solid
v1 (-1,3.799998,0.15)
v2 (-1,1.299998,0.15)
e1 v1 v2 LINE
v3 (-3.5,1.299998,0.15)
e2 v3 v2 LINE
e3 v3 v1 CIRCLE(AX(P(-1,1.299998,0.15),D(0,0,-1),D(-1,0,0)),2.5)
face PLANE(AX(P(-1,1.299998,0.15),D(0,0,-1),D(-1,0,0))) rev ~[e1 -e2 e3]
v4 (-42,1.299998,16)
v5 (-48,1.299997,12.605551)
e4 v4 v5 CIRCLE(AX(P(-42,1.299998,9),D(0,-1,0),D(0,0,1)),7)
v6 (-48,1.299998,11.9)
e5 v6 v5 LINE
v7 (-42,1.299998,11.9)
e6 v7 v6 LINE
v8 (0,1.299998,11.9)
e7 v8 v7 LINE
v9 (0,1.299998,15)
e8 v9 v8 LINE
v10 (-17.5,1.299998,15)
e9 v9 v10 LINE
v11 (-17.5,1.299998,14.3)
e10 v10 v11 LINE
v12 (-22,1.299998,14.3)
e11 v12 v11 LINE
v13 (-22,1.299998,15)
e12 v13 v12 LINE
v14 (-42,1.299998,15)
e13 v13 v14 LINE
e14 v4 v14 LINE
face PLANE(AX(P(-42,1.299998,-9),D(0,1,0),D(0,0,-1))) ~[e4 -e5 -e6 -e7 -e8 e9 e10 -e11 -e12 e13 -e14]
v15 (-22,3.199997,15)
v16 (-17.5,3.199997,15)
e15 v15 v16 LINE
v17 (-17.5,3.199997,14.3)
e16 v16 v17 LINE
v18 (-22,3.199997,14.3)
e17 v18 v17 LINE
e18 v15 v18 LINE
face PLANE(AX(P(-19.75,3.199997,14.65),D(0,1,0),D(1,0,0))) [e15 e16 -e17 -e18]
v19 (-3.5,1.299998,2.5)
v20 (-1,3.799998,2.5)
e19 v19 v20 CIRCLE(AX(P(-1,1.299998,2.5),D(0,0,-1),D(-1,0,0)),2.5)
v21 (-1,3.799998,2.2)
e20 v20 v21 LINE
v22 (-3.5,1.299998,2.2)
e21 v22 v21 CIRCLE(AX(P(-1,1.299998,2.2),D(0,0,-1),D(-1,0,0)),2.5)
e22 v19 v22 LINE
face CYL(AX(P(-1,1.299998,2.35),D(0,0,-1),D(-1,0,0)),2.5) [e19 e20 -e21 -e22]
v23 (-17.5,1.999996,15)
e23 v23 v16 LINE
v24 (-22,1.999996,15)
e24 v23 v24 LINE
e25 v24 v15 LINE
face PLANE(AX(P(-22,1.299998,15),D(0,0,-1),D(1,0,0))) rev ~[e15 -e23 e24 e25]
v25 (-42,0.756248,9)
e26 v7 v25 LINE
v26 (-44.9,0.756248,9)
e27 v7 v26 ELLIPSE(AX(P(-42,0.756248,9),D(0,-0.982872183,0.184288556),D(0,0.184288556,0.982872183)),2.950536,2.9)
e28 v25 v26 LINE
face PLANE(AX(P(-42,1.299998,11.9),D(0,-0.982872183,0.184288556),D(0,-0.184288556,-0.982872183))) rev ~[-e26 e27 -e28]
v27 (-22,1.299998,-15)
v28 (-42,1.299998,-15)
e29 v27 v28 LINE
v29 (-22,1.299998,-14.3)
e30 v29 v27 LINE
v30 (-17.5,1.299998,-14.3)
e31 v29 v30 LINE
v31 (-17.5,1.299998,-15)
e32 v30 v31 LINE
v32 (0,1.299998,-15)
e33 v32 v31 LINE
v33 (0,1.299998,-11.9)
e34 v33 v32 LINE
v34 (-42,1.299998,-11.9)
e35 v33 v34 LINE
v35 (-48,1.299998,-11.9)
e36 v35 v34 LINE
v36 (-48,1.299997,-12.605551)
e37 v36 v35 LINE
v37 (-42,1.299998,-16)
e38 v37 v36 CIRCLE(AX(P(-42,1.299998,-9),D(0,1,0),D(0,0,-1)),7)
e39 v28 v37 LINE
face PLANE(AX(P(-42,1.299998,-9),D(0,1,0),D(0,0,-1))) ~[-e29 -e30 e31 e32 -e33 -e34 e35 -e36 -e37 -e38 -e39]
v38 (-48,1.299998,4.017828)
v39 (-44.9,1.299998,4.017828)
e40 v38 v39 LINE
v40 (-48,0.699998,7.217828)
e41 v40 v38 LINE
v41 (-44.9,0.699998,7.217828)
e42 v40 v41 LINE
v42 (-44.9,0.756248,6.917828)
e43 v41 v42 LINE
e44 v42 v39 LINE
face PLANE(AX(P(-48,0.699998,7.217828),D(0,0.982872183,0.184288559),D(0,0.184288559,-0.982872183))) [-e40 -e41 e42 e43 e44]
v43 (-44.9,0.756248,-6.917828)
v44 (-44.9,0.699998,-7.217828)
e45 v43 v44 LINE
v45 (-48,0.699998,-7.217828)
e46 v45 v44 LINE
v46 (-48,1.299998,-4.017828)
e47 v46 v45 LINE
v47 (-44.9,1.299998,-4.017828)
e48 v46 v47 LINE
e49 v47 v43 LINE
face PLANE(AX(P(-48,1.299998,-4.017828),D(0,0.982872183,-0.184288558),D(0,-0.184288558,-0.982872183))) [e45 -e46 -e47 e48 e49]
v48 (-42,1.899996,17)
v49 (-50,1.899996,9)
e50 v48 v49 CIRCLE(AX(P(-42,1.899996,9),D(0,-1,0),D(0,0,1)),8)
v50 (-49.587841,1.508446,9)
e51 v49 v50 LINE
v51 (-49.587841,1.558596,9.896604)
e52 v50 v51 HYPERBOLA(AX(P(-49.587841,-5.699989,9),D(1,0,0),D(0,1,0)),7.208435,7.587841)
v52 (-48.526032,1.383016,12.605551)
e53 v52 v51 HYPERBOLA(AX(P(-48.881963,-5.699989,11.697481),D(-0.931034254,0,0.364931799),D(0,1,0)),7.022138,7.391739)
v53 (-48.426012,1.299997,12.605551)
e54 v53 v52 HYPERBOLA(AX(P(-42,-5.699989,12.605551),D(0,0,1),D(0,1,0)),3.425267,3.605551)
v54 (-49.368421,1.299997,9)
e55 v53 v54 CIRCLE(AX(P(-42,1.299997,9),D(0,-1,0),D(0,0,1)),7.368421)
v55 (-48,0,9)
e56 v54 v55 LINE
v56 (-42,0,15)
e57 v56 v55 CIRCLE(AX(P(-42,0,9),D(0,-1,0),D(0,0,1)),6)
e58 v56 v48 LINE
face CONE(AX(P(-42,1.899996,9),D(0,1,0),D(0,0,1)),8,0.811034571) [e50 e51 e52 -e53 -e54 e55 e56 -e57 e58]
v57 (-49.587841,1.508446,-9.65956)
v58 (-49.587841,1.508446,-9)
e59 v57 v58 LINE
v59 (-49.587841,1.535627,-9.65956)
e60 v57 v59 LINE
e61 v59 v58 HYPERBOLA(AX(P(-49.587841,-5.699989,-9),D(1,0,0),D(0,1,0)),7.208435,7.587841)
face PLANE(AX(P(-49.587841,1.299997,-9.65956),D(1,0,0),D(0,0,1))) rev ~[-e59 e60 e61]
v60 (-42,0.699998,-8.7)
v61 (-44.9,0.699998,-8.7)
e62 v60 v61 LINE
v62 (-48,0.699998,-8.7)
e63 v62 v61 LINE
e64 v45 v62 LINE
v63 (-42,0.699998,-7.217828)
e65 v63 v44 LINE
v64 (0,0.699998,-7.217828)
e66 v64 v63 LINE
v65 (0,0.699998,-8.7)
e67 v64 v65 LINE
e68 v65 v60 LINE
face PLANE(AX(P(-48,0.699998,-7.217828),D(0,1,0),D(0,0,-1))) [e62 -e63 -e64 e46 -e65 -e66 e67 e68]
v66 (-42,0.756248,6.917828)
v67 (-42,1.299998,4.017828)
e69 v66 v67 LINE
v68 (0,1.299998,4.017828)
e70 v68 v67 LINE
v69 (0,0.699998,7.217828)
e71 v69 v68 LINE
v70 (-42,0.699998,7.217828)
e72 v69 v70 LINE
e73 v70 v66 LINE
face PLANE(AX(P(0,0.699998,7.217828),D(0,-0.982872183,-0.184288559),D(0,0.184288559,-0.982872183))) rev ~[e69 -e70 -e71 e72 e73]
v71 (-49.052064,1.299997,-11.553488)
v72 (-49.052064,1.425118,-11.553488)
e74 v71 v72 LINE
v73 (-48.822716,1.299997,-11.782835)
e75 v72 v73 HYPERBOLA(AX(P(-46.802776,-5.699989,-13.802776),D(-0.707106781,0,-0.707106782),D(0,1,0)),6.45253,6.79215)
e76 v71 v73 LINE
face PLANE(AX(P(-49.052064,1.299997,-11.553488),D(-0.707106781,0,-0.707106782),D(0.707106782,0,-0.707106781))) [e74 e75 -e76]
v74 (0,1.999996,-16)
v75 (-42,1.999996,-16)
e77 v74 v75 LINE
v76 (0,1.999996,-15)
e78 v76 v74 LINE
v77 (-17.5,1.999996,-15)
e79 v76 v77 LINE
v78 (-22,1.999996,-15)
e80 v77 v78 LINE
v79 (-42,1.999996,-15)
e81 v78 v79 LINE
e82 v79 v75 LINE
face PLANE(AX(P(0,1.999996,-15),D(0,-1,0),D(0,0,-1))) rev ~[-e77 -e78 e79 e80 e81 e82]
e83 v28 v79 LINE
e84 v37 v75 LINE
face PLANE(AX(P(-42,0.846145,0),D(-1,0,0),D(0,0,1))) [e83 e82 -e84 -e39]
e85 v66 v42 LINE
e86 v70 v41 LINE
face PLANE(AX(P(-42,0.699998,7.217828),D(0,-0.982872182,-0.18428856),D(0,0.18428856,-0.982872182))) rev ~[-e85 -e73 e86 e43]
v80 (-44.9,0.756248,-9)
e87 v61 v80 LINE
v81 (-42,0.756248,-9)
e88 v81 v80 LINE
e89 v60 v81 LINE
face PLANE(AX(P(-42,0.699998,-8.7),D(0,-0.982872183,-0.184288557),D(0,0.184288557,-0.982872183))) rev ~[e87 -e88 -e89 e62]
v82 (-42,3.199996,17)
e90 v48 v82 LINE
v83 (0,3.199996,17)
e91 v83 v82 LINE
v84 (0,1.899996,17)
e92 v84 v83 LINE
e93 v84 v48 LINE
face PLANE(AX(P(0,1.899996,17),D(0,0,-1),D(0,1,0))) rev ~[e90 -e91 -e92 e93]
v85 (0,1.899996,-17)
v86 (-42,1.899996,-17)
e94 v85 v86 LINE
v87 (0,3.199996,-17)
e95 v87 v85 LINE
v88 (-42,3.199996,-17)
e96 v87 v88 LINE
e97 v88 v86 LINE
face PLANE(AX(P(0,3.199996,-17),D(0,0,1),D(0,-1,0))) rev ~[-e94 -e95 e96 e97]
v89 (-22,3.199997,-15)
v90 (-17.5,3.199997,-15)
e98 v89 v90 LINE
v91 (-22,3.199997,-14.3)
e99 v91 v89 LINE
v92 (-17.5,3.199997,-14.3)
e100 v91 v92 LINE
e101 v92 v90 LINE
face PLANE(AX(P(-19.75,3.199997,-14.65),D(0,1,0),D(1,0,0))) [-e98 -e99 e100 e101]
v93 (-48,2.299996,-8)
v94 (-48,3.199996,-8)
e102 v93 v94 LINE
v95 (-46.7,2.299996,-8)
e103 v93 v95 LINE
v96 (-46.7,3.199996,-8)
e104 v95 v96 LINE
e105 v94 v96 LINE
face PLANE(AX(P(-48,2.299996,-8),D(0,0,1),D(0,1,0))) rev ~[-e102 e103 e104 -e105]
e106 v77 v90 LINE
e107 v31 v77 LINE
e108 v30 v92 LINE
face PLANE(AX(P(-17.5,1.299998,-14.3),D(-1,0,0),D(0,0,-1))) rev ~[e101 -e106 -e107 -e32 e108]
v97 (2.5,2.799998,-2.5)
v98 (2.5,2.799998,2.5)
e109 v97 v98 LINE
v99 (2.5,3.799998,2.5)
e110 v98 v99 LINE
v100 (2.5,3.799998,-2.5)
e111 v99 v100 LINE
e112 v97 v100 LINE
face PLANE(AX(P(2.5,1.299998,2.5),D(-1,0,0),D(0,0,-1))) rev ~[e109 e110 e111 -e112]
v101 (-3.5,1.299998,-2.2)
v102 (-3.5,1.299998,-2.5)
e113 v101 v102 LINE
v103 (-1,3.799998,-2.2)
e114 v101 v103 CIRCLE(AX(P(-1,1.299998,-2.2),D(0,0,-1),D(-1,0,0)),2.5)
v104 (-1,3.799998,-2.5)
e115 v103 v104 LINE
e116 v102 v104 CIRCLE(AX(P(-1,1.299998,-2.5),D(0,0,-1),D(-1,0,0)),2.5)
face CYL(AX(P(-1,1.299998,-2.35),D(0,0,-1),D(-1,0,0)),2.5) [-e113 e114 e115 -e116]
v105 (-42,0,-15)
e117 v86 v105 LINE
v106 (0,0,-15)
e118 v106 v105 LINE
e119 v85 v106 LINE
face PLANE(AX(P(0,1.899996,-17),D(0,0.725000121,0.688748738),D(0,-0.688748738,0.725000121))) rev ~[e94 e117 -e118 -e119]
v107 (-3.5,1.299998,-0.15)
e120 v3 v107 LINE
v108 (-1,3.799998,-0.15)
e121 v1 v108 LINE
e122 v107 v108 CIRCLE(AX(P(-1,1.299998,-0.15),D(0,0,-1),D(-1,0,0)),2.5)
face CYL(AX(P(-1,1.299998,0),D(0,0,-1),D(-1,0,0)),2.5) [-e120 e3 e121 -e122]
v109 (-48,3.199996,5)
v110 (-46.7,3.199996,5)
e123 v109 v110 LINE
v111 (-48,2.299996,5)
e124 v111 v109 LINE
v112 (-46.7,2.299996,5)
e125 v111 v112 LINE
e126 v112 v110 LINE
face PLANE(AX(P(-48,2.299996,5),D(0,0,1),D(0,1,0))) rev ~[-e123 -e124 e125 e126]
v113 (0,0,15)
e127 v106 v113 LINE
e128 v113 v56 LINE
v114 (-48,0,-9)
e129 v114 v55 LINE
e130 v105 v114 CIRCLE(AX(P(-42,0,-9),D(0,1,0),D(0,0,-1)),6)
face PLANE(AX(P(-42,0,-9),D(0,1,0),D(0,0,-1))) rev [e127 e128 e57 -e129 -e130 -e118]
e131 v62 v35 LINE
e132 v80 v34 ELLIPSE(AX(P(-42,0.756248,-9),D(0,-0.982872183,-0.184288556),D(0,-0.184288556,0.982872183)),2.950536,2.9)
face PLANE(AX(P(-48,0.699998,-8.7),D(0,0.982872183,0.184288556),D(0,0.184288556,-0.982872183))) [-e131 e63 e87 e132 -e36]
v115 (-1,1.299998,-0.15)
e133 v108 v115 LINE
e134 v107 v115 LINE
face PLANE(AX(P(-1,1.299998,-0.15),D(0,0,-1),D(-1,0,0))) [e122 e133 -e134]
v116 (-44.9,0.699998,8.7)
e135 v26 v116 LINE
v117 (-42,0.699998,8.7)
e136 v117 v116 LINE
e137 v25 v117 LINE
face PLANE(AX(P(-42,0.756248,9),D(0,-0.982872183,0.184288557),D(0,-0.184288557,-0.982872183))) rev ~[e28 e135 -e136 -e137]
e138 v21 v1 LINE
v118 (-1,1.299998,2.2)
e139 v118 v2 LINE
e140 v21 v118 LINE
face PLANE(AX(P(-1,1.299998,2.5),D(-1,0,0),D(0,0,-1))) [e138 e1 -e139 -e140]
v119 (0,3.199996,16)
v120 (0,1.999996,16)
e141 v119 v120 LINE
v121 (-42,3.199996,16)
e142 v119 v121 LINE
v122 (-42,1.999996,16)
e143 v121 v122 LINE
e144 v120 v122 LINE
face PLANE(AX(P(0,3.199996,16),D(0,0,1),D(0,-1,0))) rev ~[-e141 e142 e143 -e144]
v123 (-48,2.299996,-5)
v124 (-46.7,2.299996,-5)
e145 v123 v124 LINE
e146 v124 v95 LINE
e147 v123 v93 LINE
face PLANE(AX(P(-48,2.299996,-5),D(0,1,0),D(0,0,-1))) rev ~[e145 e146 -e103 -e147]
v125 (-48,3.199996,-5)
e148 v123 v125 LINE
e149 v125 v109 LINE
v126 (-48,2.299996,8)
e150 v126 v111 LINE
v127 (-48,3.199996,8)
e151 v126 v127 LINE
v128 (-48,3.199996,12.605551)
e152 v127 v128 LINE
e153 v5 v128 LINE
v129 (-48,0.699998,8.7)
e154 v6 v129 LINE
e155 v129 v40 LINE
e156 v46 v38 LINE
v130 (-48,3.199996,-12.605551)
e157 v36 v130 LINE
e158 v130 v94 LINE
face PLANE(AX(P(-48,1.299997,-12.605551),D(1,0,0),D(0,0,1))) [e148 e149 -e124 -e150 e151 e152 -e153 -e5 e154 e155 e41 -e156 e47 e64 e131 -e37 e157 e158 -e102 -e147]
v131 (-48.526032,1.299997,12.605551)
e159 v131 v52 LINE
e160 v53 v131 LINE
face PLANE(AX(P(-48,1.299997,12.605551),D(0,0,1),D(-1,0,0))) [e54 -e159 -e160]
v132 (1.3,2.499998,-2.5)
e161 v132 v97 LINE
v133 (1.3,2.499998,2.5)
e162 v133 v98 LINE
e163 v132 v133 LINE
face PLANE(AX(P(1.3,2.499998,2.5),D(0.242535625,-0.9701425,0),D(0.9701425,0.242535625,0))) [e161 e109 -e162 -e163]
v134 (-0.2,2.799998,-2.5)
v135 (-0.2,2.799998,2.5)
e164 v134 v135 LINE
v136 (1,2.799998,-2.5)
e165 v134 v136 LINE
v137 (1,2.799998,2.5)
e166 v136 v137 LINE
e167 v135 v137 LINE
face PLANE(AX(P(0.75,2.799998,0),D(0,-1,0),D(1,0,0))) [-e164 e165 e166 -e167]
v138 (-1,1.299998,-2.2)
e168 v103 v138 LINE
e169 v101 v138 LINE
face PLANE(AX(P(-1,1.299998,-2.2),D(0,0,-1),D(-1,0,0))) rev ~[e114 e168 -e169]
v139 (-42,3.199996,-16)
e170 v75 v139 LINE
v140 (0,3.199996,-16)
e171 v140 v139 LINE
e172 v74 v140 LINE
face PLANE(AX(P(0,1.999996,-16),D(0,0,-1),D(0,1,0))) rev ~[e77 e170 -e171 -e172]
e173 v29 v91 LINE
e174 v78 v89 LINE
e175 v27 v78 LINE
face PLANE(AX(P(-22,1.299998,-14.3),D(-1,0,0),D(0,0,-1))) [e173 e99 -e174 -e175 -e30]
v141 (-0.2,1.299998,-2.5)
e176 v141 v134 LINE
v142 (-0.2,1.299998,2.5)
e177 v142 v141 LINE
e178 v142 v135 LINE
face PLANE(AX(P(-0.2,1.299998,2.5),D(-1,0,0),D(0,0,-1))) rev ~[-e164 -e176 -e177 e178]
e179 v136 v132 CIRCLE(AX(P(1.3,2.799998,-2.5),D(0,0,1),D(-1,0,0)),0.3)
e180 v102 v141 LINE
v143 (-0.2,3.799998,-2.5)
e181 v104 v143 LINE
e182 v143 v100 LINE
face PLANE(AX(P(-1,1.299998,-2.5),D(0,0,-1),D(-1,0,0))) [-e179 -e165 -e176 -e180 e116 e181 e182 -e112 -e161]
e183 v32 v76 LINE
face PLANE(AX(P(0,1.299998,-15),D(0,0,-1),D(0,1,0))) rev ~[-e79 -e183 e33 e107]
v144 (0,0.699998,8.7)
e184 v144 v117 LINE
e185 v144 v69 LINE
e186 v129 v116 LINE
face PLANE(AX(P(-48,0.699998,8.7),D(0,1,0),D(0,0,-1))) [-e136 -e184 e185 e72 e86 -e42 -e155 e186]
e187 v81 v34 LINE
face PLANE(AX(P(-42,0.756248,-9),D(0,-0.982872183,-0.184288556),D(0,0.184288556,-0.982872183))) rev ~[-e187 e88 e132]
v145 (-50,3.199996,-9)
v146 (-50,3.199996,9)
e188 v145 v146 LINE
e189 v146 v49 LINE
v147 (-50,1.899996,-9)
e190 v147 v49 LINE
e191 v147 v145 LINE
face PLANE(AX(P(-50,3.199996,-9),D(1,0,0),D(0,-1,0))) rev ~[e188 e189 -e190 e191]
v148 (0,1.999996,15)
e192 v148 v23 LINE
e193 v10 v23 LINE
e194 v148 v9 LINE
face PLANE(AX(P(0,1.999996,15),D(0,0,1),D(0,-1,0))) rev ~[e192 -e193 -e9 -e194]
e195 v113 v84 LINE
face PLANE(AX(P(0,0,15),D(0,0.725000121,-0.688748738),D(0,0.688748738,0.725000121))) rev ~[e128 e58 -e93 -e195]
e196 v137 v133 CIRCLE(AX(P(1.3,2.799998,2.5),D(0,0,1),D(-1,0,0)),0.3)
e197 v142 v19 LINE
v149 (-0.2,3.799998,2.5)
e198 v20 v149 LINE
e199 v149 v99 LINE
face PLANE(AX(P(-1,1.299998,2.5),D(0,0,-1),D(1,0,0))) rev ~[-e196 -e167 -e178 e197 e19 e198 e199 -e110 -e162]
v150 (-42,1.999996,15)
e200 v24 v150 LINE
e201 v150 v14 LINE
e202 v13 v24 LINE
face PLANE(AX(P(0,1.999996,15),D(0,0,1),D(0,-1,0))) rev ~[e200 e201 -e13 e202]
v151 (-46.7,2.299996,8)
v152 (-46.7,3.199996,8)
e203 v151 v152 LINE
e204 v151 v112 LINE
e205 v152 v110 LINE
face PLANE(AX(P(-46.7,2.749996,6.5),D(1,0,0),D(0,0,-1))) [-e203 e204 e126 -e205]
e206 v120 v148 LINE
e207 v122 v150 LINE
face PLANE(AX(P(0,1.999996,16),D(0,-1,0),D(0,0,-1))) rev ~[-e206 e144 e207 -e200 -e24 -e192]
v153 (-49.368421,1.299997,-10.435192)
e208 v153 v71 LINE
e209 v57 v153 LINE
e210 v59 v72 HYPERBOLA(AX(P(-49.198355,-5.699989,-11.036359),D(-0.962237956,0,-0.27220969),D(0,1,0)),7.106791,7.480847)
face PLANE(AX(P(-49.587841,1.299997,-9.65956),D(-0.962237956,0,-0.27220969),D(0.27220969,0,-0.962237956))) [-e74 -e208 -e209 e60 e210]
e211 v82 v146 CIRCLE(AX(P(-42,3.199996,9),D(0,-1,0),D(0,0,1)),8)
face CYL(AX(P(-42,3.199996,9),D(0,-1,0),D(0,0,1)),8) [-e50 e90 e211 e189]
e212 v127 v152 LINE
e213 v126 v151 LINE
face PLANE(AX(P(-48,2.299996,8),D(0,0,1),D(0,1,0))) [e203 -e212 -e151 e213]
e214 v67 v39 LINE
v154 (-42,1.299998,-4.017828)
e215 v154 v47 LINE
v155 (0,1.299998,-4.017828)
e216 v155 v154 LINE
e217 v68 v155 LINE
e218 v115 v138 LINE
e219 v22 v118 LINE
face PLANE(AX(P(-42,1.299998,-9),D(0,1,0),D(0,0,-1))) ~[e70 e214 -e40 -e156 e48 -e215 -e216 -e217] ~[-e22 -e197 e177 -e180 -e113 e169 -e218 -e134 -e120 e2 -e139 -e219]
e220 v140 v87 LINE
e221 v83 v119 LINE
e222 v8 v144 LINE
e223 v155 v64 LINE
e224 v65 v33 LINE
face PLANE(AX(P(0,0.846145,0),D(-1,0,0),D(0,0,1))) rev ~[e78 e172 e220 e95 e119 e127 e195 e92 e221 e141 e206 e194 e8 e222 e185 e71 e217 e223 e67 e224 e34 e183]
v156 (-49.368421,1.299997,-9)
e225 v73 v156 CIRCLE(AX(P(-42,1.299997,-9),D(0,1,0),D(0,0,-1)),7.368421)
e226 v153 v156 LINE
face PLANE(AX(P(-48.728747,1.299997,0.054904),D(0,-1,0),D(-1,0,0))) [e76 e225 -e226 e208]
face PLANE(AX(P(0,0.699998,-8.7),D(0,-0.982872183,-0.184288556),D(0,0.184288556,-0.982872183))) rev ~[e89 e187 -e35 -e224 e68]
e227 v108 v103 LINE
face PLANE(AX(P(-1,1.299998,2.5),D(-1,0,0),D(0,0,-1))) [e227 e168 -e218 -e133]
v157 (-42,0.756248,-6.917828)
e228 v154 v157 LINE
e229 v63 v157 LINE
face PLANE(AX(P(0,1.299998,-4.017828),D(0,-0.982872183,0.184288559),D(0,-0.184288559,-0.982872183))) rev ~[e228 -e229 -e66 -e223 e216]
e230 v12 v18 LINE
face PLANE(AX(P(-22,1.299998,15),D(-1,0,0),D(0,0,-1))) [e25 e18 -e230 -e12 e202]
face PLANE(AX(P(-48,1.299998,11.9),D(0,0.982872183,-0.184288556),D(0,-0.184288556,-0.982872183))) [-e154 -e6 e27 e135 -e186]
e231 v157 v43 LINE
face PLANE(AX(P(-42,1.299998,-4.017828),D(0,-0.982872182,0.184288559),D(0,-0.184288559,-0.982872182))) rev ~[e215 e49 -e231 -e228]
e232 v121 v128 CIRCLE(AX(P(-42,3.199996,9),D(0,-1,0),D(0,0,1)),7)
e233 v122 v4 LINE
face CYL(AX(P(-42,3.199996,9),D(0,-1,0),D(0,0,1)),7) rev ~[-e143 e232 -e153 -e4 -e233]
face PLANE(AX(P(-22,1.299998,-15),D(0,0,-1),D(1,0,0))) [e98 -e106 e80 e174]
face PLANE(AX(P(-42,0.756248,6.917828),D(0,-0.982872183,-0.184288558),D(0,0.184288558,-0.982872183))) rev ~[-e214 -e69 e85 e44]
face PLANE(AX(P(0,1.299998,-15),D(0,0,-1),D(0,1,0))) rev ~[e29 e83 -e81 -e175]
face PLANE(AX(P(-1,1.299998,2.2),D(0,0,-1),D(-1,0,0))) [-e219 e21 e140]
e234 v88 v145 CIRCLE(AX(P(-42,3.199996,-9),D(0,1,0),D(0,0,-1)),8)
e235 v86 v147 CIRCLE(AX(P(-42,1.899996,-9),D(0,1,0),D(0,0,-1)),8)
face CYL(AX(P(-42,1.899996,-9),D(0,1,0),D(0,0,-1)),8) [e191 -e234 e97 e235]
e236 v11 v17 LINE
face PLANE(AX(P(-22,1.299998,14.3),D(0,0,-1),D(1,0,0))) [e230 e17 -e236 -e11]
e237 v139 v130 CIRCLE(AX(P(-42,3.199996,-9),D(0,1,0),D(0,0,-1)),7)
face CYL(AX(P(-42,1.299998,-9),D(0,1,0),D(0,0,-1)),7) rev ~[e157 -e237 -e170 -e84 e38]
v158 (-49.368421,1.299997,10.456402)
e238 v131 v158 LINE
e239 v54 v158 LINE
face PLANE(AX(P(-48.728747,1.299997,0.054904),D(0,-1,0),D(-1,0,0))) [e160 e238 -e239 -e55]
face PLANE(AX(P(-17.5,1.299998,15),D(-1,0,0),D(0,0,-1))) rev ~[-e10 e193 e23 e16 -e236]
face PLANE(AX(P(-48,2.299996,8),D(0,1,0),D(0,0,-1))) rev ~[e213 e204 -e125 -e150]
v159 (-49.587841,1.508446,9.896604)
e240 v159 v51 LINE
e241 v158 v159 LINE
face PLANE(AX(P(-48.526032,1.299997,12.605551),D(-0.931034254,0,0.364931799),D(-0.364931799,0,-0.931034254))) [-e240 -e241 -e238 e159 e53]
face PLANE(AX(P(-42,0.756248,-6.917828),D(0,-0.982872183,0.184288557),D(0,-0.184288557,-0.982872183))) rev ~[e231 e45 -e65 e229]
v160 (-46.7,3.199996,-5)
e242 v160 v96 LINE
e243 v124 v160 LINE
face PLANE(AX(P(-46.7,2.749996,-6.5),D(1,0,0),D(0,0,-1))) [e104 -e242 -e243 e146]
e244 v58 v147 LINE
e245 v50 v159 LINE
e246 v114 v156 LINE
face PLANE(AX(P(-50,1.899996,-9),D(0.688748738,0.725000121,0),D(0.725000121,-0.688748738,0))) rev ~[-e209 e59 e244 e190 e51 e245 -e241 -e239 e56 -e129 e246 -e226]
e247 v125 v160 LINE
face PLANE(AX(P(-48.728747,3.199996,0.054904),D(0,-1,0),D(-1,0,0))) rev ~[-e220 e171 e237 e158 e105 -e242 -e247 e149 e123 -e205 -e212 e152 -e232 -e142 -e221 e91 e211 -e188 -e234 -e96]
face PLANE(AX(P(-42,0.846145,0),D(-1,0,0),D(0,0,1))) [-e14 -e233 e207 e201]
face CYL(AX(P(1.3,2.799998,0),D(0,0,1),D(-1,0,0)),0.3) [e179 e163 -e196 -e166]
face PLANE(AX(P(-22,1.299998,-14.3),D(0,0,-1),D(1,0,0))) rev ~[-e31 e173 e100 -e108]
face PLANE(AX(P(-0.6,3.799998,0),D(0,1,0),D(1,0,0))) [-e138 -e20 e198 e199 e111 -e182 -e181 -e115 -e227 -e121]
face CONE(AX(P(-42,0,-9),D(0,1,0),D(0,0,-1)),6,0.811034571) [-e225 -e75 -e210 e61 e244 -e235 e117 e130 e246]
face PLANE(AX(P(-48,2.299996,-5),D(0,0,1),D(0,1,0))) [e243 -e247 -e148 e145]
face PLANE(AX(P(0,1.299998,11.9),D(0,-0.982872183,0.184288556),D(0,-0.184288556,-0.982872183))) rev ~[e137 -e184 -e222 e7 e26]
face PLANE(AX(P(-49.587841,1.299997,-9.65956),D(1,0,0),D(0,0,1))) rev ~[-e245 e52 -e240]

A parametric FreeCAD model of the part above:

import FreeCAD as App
import Part
import Sketcher
Q = App.Units.Quantity


def add_polygon(sketch, points):
    """Adds a closed chain of lines whose ends are joined by coincident constraints."""
    first, n = sketch.GeometryCount, len(points)
    for a, b in zip(points, points[1:] + points[:1]):
        sketch.addGeometry(Part.LineSegment(App.Vector(*a, 0), App.Vector(*b, 0)), False)
    for i in range(n):
        sketch.addConstraint(Sketcher.Constraint("Coincident", first + i, 2, first + (i + 1) % n, 1))

doc = App.newDocument("Part")
params = doc.addObject("Spreadsheet::Sheet", "Params")
for row, (alias, value) in enumerate([
    ("sketch1_height", "1 mm"),
    ("sketch1_height2", "30 mm"),
    ("sketch1_width", "0.699999 mm"),
    ("sketch1_width2", "1.2 mm"),
    ("sketch1_width3", "1.3 mm"),
    ("pad1_length", "42 mm"),
    ("sketch2_width", "4.5 mm"),
    ("sketch2_height", "0.7 mm"),
    ("pad2_length", "1.899999 mm"),
    ("sketch3_height", "5 mm"),
    ("sketch3_width", "2.5 mm"),
    ("sketch3_height2", "0.3 mm"),
    ("revolution_angle", "90 deg"),
    ("sketch4_height", "1 mm"),
    ("sketch4_height2", "6 mm"),
    ("sketch4_width", "1.3 mm"),
    ("sketch4_width2", "1.899999 mm"),
    ("sketch4_height3", "4.1 mm"),
    ("revolution2_angle", "90 deg"),
    ("sketch5_height", "1 mm"),
    ("sketch5_height2", "6 mm"),
    ("sketch5_width", "1.899999 mm"),
    ("sketch5_width2", "1.3 mm"),
    ("sketch5_height3", "2.9 mm"),
    ("revolution3_angle", "90 deg"),
    ("sketch6_width", "1 mm"),
    ("sketch6_width2", "6 mm"),
    ("sketch6_width3", "2.9 mm"),
    ("sketch6_width4", "4.1 mm"),
    ("sketch6_height", "1.899999 mm"),
    ("pad3_length", "18 mm"),
    ("sketch7_height", "2.9 mm"),
    ("pad4_length", "2.9 mm"),
    ("pocket1_length", "2.9 mm"),
    ("pad5_length", "1.899999 mm"),
    ("sketch10_height", "3 mm"),
    ("sketch10_width", "0.9 mm"),
    ("pad6_length", "1.3 mm"),
    ("pocket2_length", "3.1 mm"),
    ("pocket3_length", "2.9 mm"),
    ("sketch13_height", "5 mm"),
    ("sketch13_width", "2.7 mm"),
    ("pad7_length", "2.5 mm"),
    ("sketch14_height", "5 mm"),
    ("sketch14_width", "3.5 mm"),
    ("pocket4_length", "1.5 mm"),
    ("sketch15_height", "5 mm"),
    ("sketch15_width", "0.3 mm"),
    ("revolution4_angle", "90 deg"),
    ("sketch16_width", "1.2 mm"),
    ("sketch16_height", "0.3 mm"),
    ("pad8_length", "5 mm"),
    ("sketch17_height", "5 mm"),
    ("sketch17_width", "0.8 mm"),
    ("pad9_length", "2.5 mm"),
    ("sketch18_width", "2 mm"),
], start=1):
    params.set(f"A{row}", alias)
    params.set(f"B{row}", "=" + value)
    params.setAlias(f"B{row}", alias)

body = doc.addObject("PartDesign::Body", "Body")

sketch1 = body.newObject("Sketcher::SketchObject", "Sketch")
sketch1.AttachmentSupport = (doc.getObject("YZ_Plane"), [""])
sketch1.MapMode = "FlatFace"
add_polygon(sketch1, [(1.299998, -4.017828), (1.299998, 4.017828), (0.699998, 7.217828), (0.699998, 8.7), (1.299998, 11.9), (1.299998, 15), (1.999996, 15), (1.999996, 16), (3.199996, 16), (3.199996, 17), (1.899996, 17), (0, 15), (0, -15), (1.899996, -17), (3.199996, -17), (3.199996, -16), (1.999996, -16), (1.999996, -15), (1.299998, -15), (1.299998, -11.9), (0.699998, -8.7), (0.699998, -7.217828)])
sketch1.addConstraint([
    Sketcher.Constraint("Vertical", 0),
    Sketcher.Constraint("Vertical", 2),
    Sketcher.Constraint("Vertical", 4),
    Sketcher.Constraint("Horizontal", 5),
    Sketcher.Constraint("Vertical", 6),
    Sketcher.Constraint("Horizontal", 7),
    Sketcher.Constraint("Vertical", 8),
    Sketcher.Constraint("Horizontal", 9),
    Sketcher.Constraint("Vertical", 11),
    Sketcher.Constraint("Horizontal", 13),
    Sketcher.Constraint("Vertical", 14),
    Sketcher.Constraint("Horizontal", 15),
    Sketcher.Constraint("Vertical", 16),
    Sketcher.Constraint("Horizontal", 17),
    Sketcher.Constraint("Vertical", 18),
    Sketcher.Constraint("Vertical", 20),
    Sketcher.Constraint("Symmetric", 10, 2, 11, 2, -1, 1),
    Sketcher.Constraint("Symmetric", 9, 2, 12, 2, -1),
    Sketcher.Constraint("Symmetric", 7, 2, 14, 2, -1),
    Sketcher.Constraint("Symmetric", 5, 2, 16, 2, -1),
    Sketcher.Constraint("Symmetric", 3, 2, 18, 2, -1),
    Sketcher.Constraint("Symmetric", 2, 2, 19, 2, -1),
    Sketcher.Constraint("Parallel", 1, 19),
    Sketcher.Constraint("Parallel", 3, 21),
    Sketcher.Constraint("Horizontal", 5, 2, 10, 2),
    Sketcher.Constraint("Vertical", 0, 2, 3, 2),
    Sketcher.Constraint("Equal", 6, 8),
    Sketcher.Constraint("Equal", 2, 20),
    Sketcher.Constraint("DistanceY", 6, 1, 6, 2, 1.0),
    Sketcher.Constraint("DistanceY", 11, 2, 11, 1, 30.0),
    Sketcher.Constraint("DistanceX", 5, 1, 5, 2, 0.699999),
    Sketcher.Constraint("DistanceX", 7, 1, 7, 2, 1.2),
    Sketcher.Constraint("DistanceX", 9, 2, 9, 1, 1.3),
    Sketcher.Constraint("DistanceY", 4, 1, 4, 2, 3.1),
    Sketcher.Constraint("DistanceY", -1, 1, 2, 2, 8.7),
    Sketcher.Constraint("DistanceX", 1, 2, 0, 2, 0.6),
    Sketcher.Constraint("DistanceY", 2, 1, 2, 2, 1.482172),
    Sketcher.Constraint("Distance", 10, 2.75862),
])
sketch1.setExpression("Constraints[50]", "Params.sketch1_height")
sketch1.setExpression("Constraints[51]", "Params.sketch1_height2")
sketch1.setExpression("Constraints[52]", "Params.sketch1_width")
sketch1.setExpression("Constraints[53]", "Params.sketch1_width2")
sketch1.setExpression("Constraints[54]", "Params.sketch1_width3")
pad1 = body.newObject("PartDesign::Pad", "Pad")
pad1.Profile = sketch1
pad1.setExpression("Length", "Params.pad1_length")
pad1.Reversed = True

sketch2 = body.newObject("Sketcher::SketchObject", "Sketch001")
sketch2.AttachmentSupport = (doc.getObject("XZ_Plane"), [""])
sketch2.MapMode = "FlatFace"
sketch2.AttachmentOffset = App.Placement(App.Vector(0, 0, -1.299998), App.Rotation())
add_polygon(sketch2, [(-22, -15), (-22, -14.3), (-17.5, -14.3), (-17.5, -15)])
add_polygon(sketch2, [(-22, 14.3), (-22, 15), (-17.5, 15), (-17.5, 14.3)])
sketch2.addConstraint([
    Sketcher.Constraint("Vertical", 0),
    Sketcher.Constraint("Horizontal", 1),
    Sketcher.Constraint("Vertical", 2),
    Sketcher.Constraint("Horizontal", 3),
    Sketcher.Constraint("Vertical", 4),
    Sketcher.Constraint("Horizontal", 5),
    Sketcher.Constraint("Vertical", 6),
    Sketcher.Constraint("Horizontal", 7),
    Sketcher.Constraint("Symmetric", 3, 2, 4, 2, -1),
    Sketcher.Constraint("Symmetric", 1, 2, 6, 2, -1),
    Sketcher.Constraint("DistanceX", 1, 1, 1, 2, 4.5),
    Sketcher.Constraint("DistanceY", 0, 1, 0, 2, 0.7),
    Sketcher.Constraint("DistanceX", 0, 2, -1, 1, 22.0),
    Sketcher.Constraint("DistanceY", 2, 2, -1, 1, 15.0),
])
sketch2.setExpression("Constraints[18]", "Params.sketch2_width")
sketch2.setExpression("Constraints[19]", "Params.sketch2_height")
pad2 = body.newObject("PartDesign::Pad", "Pad001")
pad2.Profile = sketch2
pad2.setExpression("Length", "Params.pad2_length")
pad2.Reversed = True

sketch3 = body.newObject("Sketcher::SketchObject", "Sketch002")
sketch3.AttachmentSupport = (doc.getObject("XZ_Plane"), [""])
sketch3.MapMode = "FlatFace"
sketch3.AttachmentOffset = App.Placement(App.Vector(0, 0, -1.299998), App.Rotation())
add_polygon(sketch3, [(-3.5, -2.5), (-3.5, -2.2), (-1, -2.2), (-1, -2.5)])
add_polygon(sketch3, [(-3.5, -0.15), (-3.5, 0.15), (-1, 0.15), (-1, -0.15)])
add_polygon(sketch3, [(-3.5, 2.2), (-3.5, 2.5), (-1, 2.5), (-1, 2.2)])
sketch3.addGeometry(Part.LineSegment(App.Vector(-1, 2.5, 0), App.Vector(-1, -2.5, 0)), True)
sketch3.addConstraint([
    Sketcher.Constraint("Vertical", 0),
    Sketcher.Constraint("Horizontal", 1),
    Sketcher.Constraint("Vertical", 2),
    Sketcher.Constraint("Horizontal", 3),
    Sketcher.Constraint("Vertical", 4),
    Sketcher.Constraint("Horizontal", 5),
    Sketcher.Constraint("Vertical", 6),
    Sketcher.Constraint("Horizontal", 7),
    Sketcher.Constraint("Vertical", 8),
    Sketcher.Constraint("Horizontal", 9),
    Sketcher.Constraint("Vertical", 10),
    Sketcher.Constraint("Horizontal", 11),
    Sketcher.Constraint("Vertical", 12),
    Sketcher.Constraint("Coincident", 12, 1, 9, 2),
    Sketcher.Constraint("Coincident", 12, 2, 2, 2),
    Sketcher.Constraint("Symmetric", 3, 2, 8, 2, -1),
    Sketcher.Constraint("Vertical", 3, 2, 4, 2),
    Sketcher.Constraint("Vertical", 2, 2, 5, 2),
    Sketcher.Constraint("Equal", 2, 4),
    Sketcher.Constraint("Equal", 6, 8),
    Sketcher.Constraint("DistanceY", 12, 2, 12, 1, 5.0),
    Sketcher.Constraint("DistanceX", 1, 1, 1, 2, 2.5),
    Sketcher.Constraint("DistanceY", 0, 1, 0, 2, 0.3),
    Sketcher.Constraint("DistanceX", 1, 2, -1, 1, 1.0),
    Sketcher.Constraint("DistanceY", -1, 1, 4, 2, 0.15),
])
sketch3.setExpression("Constraints[32]", "Params.sketch3_height")
sketch3.setExpression("Constraints[33]", "Params.sketch3_width")
sketch3.setExpression("Constraints[34]", "Params.sketch3_height2")
revolution = body.newObject("PartDesign::Revolution", "Revolution")
revolution.Profile = sketch3
revolution.ReferenceAxis = (sketch3, ["Axis0"])
revolution.setExpression("Angle", "Params.revolution_angle")

sketch4 = body.newObject("Sketcher::SketchObject", "Sketch003")
sketch4.AttachmentSupport = (doc.getObject("YZ_Plane"), [""])
sketch4.MapMode = "FlatFace"
sketch4.AttachmentOffset = App.Placement(App.Vector(0, 0, -42), App.Rotation())
add_polygon(sketch4, [(1.899996, 17), (3.199996, 17), (3.199996, 16), (1.299998, 16), (1.299998, 11.9), (0.756248, 11.9), (0.756248, 9), (0, 9), (0, 15)])
sketch4.addGeometry(Part.LineSegment(App.Vector(3.199996, 9, 0), App.Vector(0, 9, 0)), True)
sketch4.addConstraint([
    Sketcher.Constraint("Horizontal", 0),
    Sketcher.Constraint("Vertical", 1),
    Sketcher.Constraint("Horizontal", 2),
    Sketcher.Constraint("Vertical", 3),
    Sketcher.Constraint("Horizontal", 4),
    Sketcher.Constraint("Vertical", 5),
    Sketcher.Constraint("Horizontal", 6),
    Sketcher.Constraint("Vertical", 7),
    Sketcher.Constraint("Horizontal", 9),
    Sketcher.Constraint("Coincident", 9, 2, 6, 2),
    Sketcher.Constraint("PointOnObject", 6, 2, -2),
    Sketcher.Constraint("Vertical", 1, 2, 9, 1),
    Sketcher.Constraint("DistanceY", 1, 2, 1, 1, 1.0),
    Sketcher.Constraint("DistanceY", 7, 1, 7, 2, 6.0),
    Sketcher.Constraint("DistanceX", 0, 1, 0, 2, 1.3),
    Sketcher.Constraint("DistanceX", 2, 2, 2, 1, 1.899999),
    Sketcher.Constraint("DistanceY", 3, 2, 3, 1, 4.1),
    Sketcher.Constraint("DistanceY", 5, 2, 5, 1, 2.9),
    Sketcher.Constraint("DistanceY", -1, 1, 0, 2, 17.0),
    Sketcher.Constraint("DistanceX", 4, 2, 4, 1, 0.54375),
    Sketcher.Constraint("Distance", 8, 2.75862),
])
sketch4.setExpression("Constraints[21]", "Params.sketch4_height")
sketch4.setExpression("Constraints[22]", "Params.sketch4_height2")
sketch4.setExpression("Constraints[23]", "Params.sketch4_width")
sketch4.setExpression("Constraints[24]", "Params.sketch4_width2")
sketch4.setExpression("Constraints[25]", "Params.sketch4_height3")
revolution2 = body.newObject("PartDesign::Revolution", "Revolution001")
revolution2.Profile = sketch4
revolution2.ReferenceAxis = (sketch4, ["Axis0"])
revolution2.setExpression("Angle", "Params.revolution2_angle")

sketch5 = body.newObject("Sketcher::SketchObject", "Sketch004")
sketch5.AttachmentSupport = (doc.getObject("YZ_Plane"), [""])
sketch5.MapMode = "FlatFace"
sketch5.AttachmentOffset = App.Placement(App.Vector(0, 0, -42), App.Rotation())
add_polygon(sketch5, [(0, -9), (0.756248, -9), (0.756248, -11.9), (1.299998, -11.9), (1.299998, -16), (3.199996, -16), (3.199996, -17), (1.899996, -17), (0, -15)])
sketch5.addGeometry(Part.LineSegment(App.Vector(0, -9, 0), App.Vector(3.199996, -9, 0)), True)
sketch5.addConstraint([
    Sketcher.Constraint("Horizontal", 0),
    Sketcher.Constraint("Vertical", 1),
    Sketcher.Constraint("Horizontal", 2),
    Sketcher.Constraint("Vertical", 3),
    Sketcher.Constraint("Horizontal", 4),
    Sketcher.Constraint("Vertical", 5),
    Sketcher.Constraint("Horizontal", 6),
    Sketcher.Constraint("Vertical", 8),
    Sketcher.Constraint("Horizontal", 9),
    Sketcher.Constraint("Coincident", 9, 1, 8, 2),
    Sketcher.Constraint("PointOnObject", 7, 2, -2),
    Sketcher.Constraint("Vertical", 5, 2, 9, 2),
    Sketcher.Constraint("DistanceY", 5, 2, 5, 1, 1.0),
    Sketcher.Constraint("DistanceY", 8, 1, 8, 2, 6.0),
    Sketcher.Constraint("DistanceX", 4, 1, 4, 2, 1.899999),
    Sketcher.Constraint("DistanceX", 6, 2, 6, 1, 1.3),
    Sketcher.Constraint("DistanceY", 1, 2, 1, 1, 2.9),
    Sketcher.Constraint("DistanceY", 3, 2, 3, 1, 4.1),
    Sketcher.Constraint("DistanceY", 0, 2, -1, 1, 9.0),
    Sketcher.Constraint("DistanceX", 2, 1, 2, 2, 0.54375),
    Sketcher.Constraint("Distance", 7, 2.75862),
])
sketch5.setExpression("Constraints[21]", "Params.sketch5_height")
sketch5.setExpression("Constraints[22]", "Params.sketch5_height2")
sketch5.setExpression("Constraints[23]", "Params.sketch5_width")
sketch5.setExpression("Constraints[24]", "Params.sketch5_width2")
sketch5.setExpression("Constraints[25]", "Params.sketch5_height3")
revolution3 = body.newObject("PartDesign::Revolution", "Revolution002")
revolution3.Profile = sketch5
revolution3.ReferenceAxis = (sketch5, ["Axis0"])
revolution3.setExpression("Angle", "Params.revolution3_angle")

sketch6 = body.newObject("Sketcher::SketchObject", "Sketch005")
sketch6.AttachmentSupport = (doc.getObject("XY_Plane"), [""])
sketch6.MapMode = "FlatFace"
sketch6.AttachmentOffset = App.Placement(App.Vector(0, 0, -9), App.Rotation())
add_polygon(sketch6, [(-42, 0), (-42, 0.756248), (-44.9, 0.756248), (-44.9, 1.299998), (-49, 1.299998), (-49, 3.199996), (-50, 3.199996), (-50, 1.899996), (-48, 0)])
sketch6.addConstraint([
    Sketcher.Constraint("Vertical", 0),
    Sketcher.Constraint("Horizontal", 1),
    Sketcher.Constraint("Vertical", 2),
    Sketcher.Constraint("Horizontal", 3),
    Sketcher.Constraint("Vertical", 4),
    Sketcher.Constraint("Horizontal", 5),
    Sketcher.Constraint("Vertical", 6),
    Sketcher.Constraint("Horizontal", 8),
    Sketcher.Constraint("PointOnObject", 7, 2, -1),
    Sketcher.Constraint("DistanceX", 5, 2, 5, 1, 1.0),
    Sketcher.Constraint("DistanceX", 8, 1, 8, 2, 6.0),
    Sketcher.Constraint("DistanceX", 1, 2, 1, 1, 2.9),
    Sketcher.Constraint("DistanceX", 3, 2, 3, 1, 4.1),
    Sketcher.Constraint("DistanceY", 4, 1, 4, 2, 1.899999),
    Sketcher.Constraint("DistanceY", 6, 2, 6, 1, 1.3),
    Sketcher.Constraint("DistanceX", 0, 2, -1, 1, 42.0),
    Sketcher.Constraint("DistanceY", 2, 1, 2, 2, 0.54375),
    Sketcher.Constraint("Distance", 7, 2.75862),
])
sketch6.setExpression("Constraints[18]", "Params.sketch6_width")
sketch6.setExpression("Constraints[19]", "Params.sketch6_width2")
sketch6.setExpression("Constraints[20]", "Params.sketch6_width3")
sketch6.setExpression("Constraints[21]", "Params.sketch6_width4")
sketch6.setExpression("Constraints[22]", "Params.sketch6_height")
pad3 = body.newObject("PartDesign::Pad", "Pad002")
pad3.Profile = sketch6
pad3.setExpression("Length", "Params.pad3_length")

sketch7 = body.newObject("Sketcher::SketchObject", "Sketch006")
sketch7.AttachmentSupport = (doc.getObject("YZ_Plane"), [""])
sketch7.MapMode = "FlatFace"
sketch7.AttachmentOffset = App.Placement(App.Vector(0, 0, -42), App.Rotation())
add_polygon(sketch7, [(0.756248, 11.9), (1.299998, 11.9), (0.756248, 9)])
add_polygon(sketch7, [(0.756248, 6.917828), (1.299998, 4.017828), (1.299998, -4.017828), (0.728123, -7.067828)])
add_polygon(sketch7, [(0.756248, -9), (1.299998, -11.9), (0.756248, -11.9)])
sketch7.addConstraint([
    Sketcher.Constraint("Horizontal", 0),
    Sketcher.Constraint("Vertical", 2),
    Sketcher.Constraint("Vertical", 4),
    Sketcher.Constraint("Horizontal", 8),
    Sketcher.Constraint("Vertical", 9),
    Sketcher.Constraint("Symmetric", 0, 2, 7, 2, -1),
    Sketcher.Constraint("Symmetric", 1, 2, 9, 2, -1),
    Sketcher.Constraint("Parallel", 1, 5),
    Sketcher.Constraint("Parallel", 3, 7),
    Sketcher.Constraint("Vertical", 0, 2, 3, 2),
    Sketcher.Constraint("Vertical", 2, 2, 6, 2),
    Sketcher.Constraint("DistanceY", 2, 1, 2, 2, 2.9),
    Sketcher.Constraint("DistanceY", -1, 1, 1, 2, 9.0),
    Sketcher.Constraint("DistanceY", 5, 2, 4, 2, 3.05),
    Sketcher.Constraint("DistanceX", 0, 1, 0, 2, 0.54375),
    Sketcher.Constraint("DistanceY", 4, 2, 4, 1, 8.035657),
    Sketcher.Constraint("DistanceY", -1, 1, 3, 2, 4.017828),
    Sketcher.Constraint("DistanceX", -1, 1, 0, 2, 1.299998),
])
sketch7.setExpression("Constraints[21]", "Params.sketch7_height")
pad4 = body.newObject("PartDesign::Pad", "Pad003")
pad4.Profile = sketch7
pad4.setExpression("Length", "Params.pad4_length")
pad4.Reversed = True

sketch8 = body.newObject("Sketcher::SketchObject", "Sketch007")
sketch8.AttachmentSupport = (doc.getObject("YZ_Plane"), [""])
sketch8.MapMode = "FlatFace"
sketch8.AttachmentOffset = App.Placement(App.Vector(0, 0, -42), App.Rotation())
add_polygon(sketch8, [(0.699998, 8.7), (0.699998, 7.217828), (0.756248, 6.917828), (0.756248, 9)])
add_polygon(sketch8, [(0.699998, -8.7), (0.756248, -9), (0.756248, -6.917828), (0.699998, -7.217828)])
sketch8.addConstraint([
    Sketcher.Constraint("Vertical", 0),
    Sketcher.Constraint("Vertical", 2),
    Sketcher.Constraint("Vertical", 5),
    Sketcher.Constraint("Vertical", 7),
    Sketcher.Constraint("Symmetric", 2, 2, 4, 2, -1),
    Sketcher.Constraint("Symmetric", 0, 2, 6, 2, -1),
    Sketcher.Constraint("Parallel", 1, 4),
    Sketcher.Constraint("Parallel", 3, 6),
    Sketcher.Constraint("Equal", 2, 5),
    Sketcher.Constraint("DistanceY", -1, 1, 2, 2, 9.0),
    Sketcher.Constraint("DistanceY", -1, 1, 3, 2, 8.7),
    Sketcher.Constraint("DistanceY", 0, 2, 0, 1, 1.482172),
    Sketcher.Constraint("DistanceX", 0, 2, 1, 2, 0.05625),
    Sketcher.Constraint("DistanceX", -1, 1, 0, 2, 0.699998),
])
pocket1 = body.newObject("PartDesign::Pocket", "Pocket")
pocket1.Profile = sketch8
pocket1.setExpression("Length", "Params.pocket1_length")

sketch9 = body.newObject("Sketcher::SketchObject", "Sketch008")
sketch9.AttachmentSupport = (doc.getObject("XZ_Plane"), [""])
sketch9.MapMode = "FlatFace"
sketch9.AttachmentOffset = App.Placement(App.Vector(0, 0, -1.299997), App.Rotation())
add_polygon(sketch9, [(-48, 12.605551), (-48, -12.605551), (-49.052064, -11.553488), (-49.587841, -9.65956), (-49.587841, 9.896604), (-48.526032, 12.605551)])
sketch9.addConstraint([
    Sketcher.Constraint("Vertical", 0),
    Sketcher.Constraint("Vertical", 3),
    Sketcher.Constraint("Horizontal", 5),
    Sketcher.Constraint("Angle", 1, Q("135 deg")),
    Sketcher.Constraint("DistanceX", 0, 2, -1, 1, 48.0),
    Sketcher.Constraint("DistanceX", 5, 1, 5, 2, 0.526032),
    Sketcher.Constraint("Distance", 4, 2.90961),
    Sketcher.Constraint("DistanceY", 0, 2, 0, 1, 25.211103),
    Sketcher.Constraint("DistanceY", 3, 1, 3, 2, 19.556164),
    Sketcher.Constraint("DistanceY", 0, 2, -1, 1, 12.605551),
    Sketcher.Constraint("DistanceX", 2, 2, -1, 1, 49.587841),
    Sketcher.Constraint("DistanceY", 1, 2, 3, 2, 21.450092),
])
pad5 = body.newObject("PartDesign::Pad", "Pad004")
pad5.Profile = sketch9
pad5.setExpression("Length", "Params.pad5_length")
pad5.Reversed = True

sketch10 = body.newObject("Sketcher::SketchObject", "Sketch009")
sketch10.AttachmentSupport = (doc.getObject("YZ_Plane"), [""])
sketch10.MapMode = "FlatFace"
sketch10.AttachmentOffset = App.Placement(App.Vector(0, 0, -48), App.Rotation())
add_polygon(sketch10, [(3.199996, -5), (2.299996, -5), (2.299996, -8), (3.199996, -8)])
add_polygon(sketch10, [(3.199996, 8), (2.299996, 8), (2.299996, 5), (3.199996, 5)])
sketch10.addConstraint([
    Sketcher.Constraint("Horizontal", 0),
    Sketcher.Constraint("Vertical", 1),
    Sketcher.Constraint("Horizontal", 2),
    Sketcher.Constraint("Vertical", 3),
    Sketcher.Constraint("Horizontal", 4),
    Sketcher.Constraint("Vertical", 5),
    Sketcher.Constraint("Horizontal", 6),
    Sketcher.Constraint("Vertical", 7),
    Sketcher.Constraint("Symmetric", 1, 2, 4, 2, -1),
    Sketcher.Constraint("Symmetric", 3, 2, 6, 2, -1),
    Sketcher.Constraint("DistanceY", 1, 2, 1, 1, 3.0),
    Sketcher.Constraint("DistanceX", 0, 2, 0, 1, 0.9),
    Sketcher.Constraint("DistanceY", 0, 2, -1, 1, 5.0),
    Sketcher.Constraint("DistanceX", -1, 1, 0, 2, 2.299996),
])
sketch10.setExpression("Constraints[18]", "Params.sketch10_height")
sketch10.setExpression("Constraints[19]", "Params.sketch10_width")
pad6 = body.newObject("PartDesign::Pad", "Pad005")
pad6.Profile = sketch10
pad6.setExpression("Length", "Params.pad6_length")

sketch11 = body.newObject("Sketcher::SketchObject", "Sketch010")
sketch11.AttachmentSupport = (doc.getObject("YZ_Plane"), [""])
sketch11.MapMode = "FlatFace"
sketch11.AttachmentOffset = App.Placement(App.Vector(0, 0, -48), App.Rotation())
add_polygon(sketch11, [(0.699998, 8.7), (0.699998, 7.217828), (1.299998, 4.017828), (1.299998, 11.9)])
add_polygon(sketch11, [(1.299998, -4.017828), (0.699998, -7.217828), (0.699998, -8.7), (1.299998, -11.9)])
sketch11.addConstraint([
    Sketcher.Constraint("Vertical", 0),
    Sketcher.Constraint("Vertical", 2),
    Sketcher.Constraint("Vertical", 5),
    Sketcher.Constraint("Vertical", 7),
    Sketcher.Constraint("Symmetric", 0, 2, 4, 2, -1),
    Sketcher.Constraint("Symmetric", 2, 2, 6, 2, -1),
    Sketcher.Constraint("Parallel", 3, 4),
    Sketcher.Constraint("Parallel", 1, 6),
    Sketcher.Constraint("Equal", 0, 5),
    Sketcher.Constraint("DistanceY", -1, 1, 2, 2, 11.9),
    Sketcher.Constraint("DistanceY", -1, 1, 3, 2, 8.7),
    Sketcher.Constraint("DistanceX", 0, 2, 1, 2, 0.6),
    Sketcher.Constraint("DistanceY", 0, 2, 0, 1, 1.482172),
    Sketcher.Constraint("DistanceX", -1, 1, 0, 2, 0.699998),
])
pocket2 = body.newObject("PartDesign::Pocket", "Pocket001")
pocket2.Profile = sketch11
pocket2.setExpression("Length", "Params.pocket2_length")
pocket2.Reversed = True

sketch12 = body.newObject("Sketcher::SketchObject", "Sketch011")
sketch12.AttachmentSupport = (doc.getObject("YZ_Plane"), [""])
sketch12.MapMode = "FlatFace"
sketch12.AttachmentOffset = App.Placement(App.Vector(0, 0, -44.9), App.Rotation())
add_polygon(sketch12, [(1.299998, 4.017828), (1.299998, 11.9), (0.699998, 8.7), (0.699998, 7.217828)])
add_polygon(sketch12, [(1.299998, -11.9), (1.299998, -4.017828), (0.699998, -7.272373), (0.699998, -8.7)])
sketch12.addConstraint([
    Sketcher.Constraint("Vertical", 0),
    Sketcher.Constraint("Vertical", 2),
    Sketcher.Constraint("Vertical", 4),
    Sketcher.Constraint("Vertical", 6),
    Sketcher.Constraint("Symmetric", 3, 2, 4, 2, -1),
    Sketcher.Constraint("Symmetric", 1, 2, 6, 2, -1),
    Sketcher.Constraint("Parallel", 3, 7),
    Sketcher.Constraint("Equal", 0, 4),
    Sketcher.Constraint("DistanceY", -1, 1, 0, 2, 11.9),
    Sketcher.Constraint("DistanceY", -1, 1, 1, 2, 8.7),
    Sketcher.Constraint("DistanceX", 1, 2, 0, 2, 0.6),
    Sketcher.Constraint("DistanceY", 0, 1, 0, 2, 7.882172),
    Sketcher.Constraint("DistanceY", 5, 2, 3, 2, 11.290201),
    Sketcher.Constraint("DistanceX", -1, 1, 0, 2, 1.299998),
])
pocket3 = body.newObject("PartDesign::Pocket", "Pocket002")
pocket3.Profile = sketch12
pocket3.setExpression("Length", "Params.pocket3_length")
pocket3.Reversed = True
body2 = doc.addObject("PartDesign::Body", "Body001")

sketch13 = body2.newObject("Sketcher::SketchObject", "Sketch012")
sketch13.AttachmentSupport = (doc.getObject("XZ_Plane001"), [""])
sketch13.MapMode = "FlatFace"
sketch13.AttachmentOffset = App.Placement(App.Vector(0, 0, -1.299998), App.Rotation())
add_polygon(sketch13, [(-0.2, -2.5), (-0.2, 2.5), (2.5, 2.5), (2.5, -2.5)])
sketch13.addConstraint([
    Sketcher.Constraint("Vertical", 0),
    Sketcher.Constraint("Horizontal", 1),
    Sketcher.Constraint("Vertical", 2),
    Sketcher.Constraint("Horizontal", 3),
    Sketcher.Constraint("DistanceY", 0, 1, 0, 2, 5.0),
    Sketcher.Constraint("DistanceX", 1, 1, 1, 2, 2.7),
    Sketcher.Constraint("DistanceX", 0, 2, -1, 1, 0.2),
    Sketcher.Constraint("DistanceY", -1, 1, 0, 2, 2.5),
])
sketch13.setExpression("Constraints[8]", "Params.sketch13_height")
sketch13.setExpression("Constraints[9]", "Params.sketch13_width")
pad7 = body2.newObject("PartDesign::Pad", "Pad006")
pad7.Profile = sketch13
pad7.setExpression("Length", "Params.pad7_length")
pad7.Reversed = True

sketch14 = body2.newObject("Sketcher::SketchObject", "Sketch013")
sketch14.AttachmentSupport = (doc.getObject("XZ_Plane001"), [""])
sketch14.MapMode = "FlatFace"
sketch14.AttachmentOffset = App.Placement(App.Vector(0, 0, -1.299998), App.Rotation())
add_polygon(sketch14, [(-1, 2.5), (-1, -2.5), (2.5, -2.5), (2.5, 2.5)])
sketch14.addConstraint([
    Sketcher.Constraint("Vertical", 0),
    Sketcher.Constraint("Horizontal", 1),
    Sketcher.Constraint("Vertical", 2),
    Sketcher.Constraint("Horizontal", 3),
    Sketcher.Constraint("DistanceY", 0, 2, 0, 1, 5.0),
    Sketcher.Constraint("DistanceX", 1, 1, 1, 2, 3.5),
    Sketcher.Constraint("DistanceX", 0, 2, -1, 1, 1.0),
    Sketcher.Constraint("DistanceY", 0, 2, -1, 1, 2.5),
])
sketch14.setExpression("Constraints[8]", "Params.sketch14_height")
sketch14.setExpression("Constraints[9]", "Params.sketch14_width")
pocket4 = body2.newObject("PartDesign::Pocket", "Pocket003")
pocket4.Profile = sketch14
pocket4.setExpression("Length", "Params.pocket4_length")

sketch15 = body2.newObject("Sketcher::SketchObject", "Sketch014")
sketch15.AttachmentSupport = (doc.getObject("XZ_Plane001"), [""])
sketch15.MapMode = "FlatFace"
sketch15.AttachmentOffset = App.Placement(App.Vector(0, 0, -2.799998), App.Rotation())
add_polygon(sketch15, [(1, 2.5), (1, -2.5), (1.3, -2.5), (1.3, 2.5)])
sketch15.addGeometry(Part.LineSegment(App.Vector(1.3, -2.5, 0), App.Vector(1.3, 2.5, 0)), True)
sketch15.addConstraint([
    Sketcher.Constraint("Vertical", 0),
    Sketcher.Constraint("Horizontal", 1),
    Sketcher.Constraint("Vertical", 2),
    Sketcher.Constraint("Horizontal", 3),
    Sketcher.Constraint("Vertical", 4),
    Sketcher.Constraint("Coincident", 4, 1, 1, 2),
    Sketcher.Constraint("Horizontal", 3, 2, 4, 2),
    Sketcher.Constraint("DistanceY", 0, 2, 0, 1, 5.0),
    Sketcher.Constraint("DistanceX", 1, 1, 1, 2, 0.3),
    Sketcher.Constraint("DistanceX", -1, 1, 0, 2, 1.0),
    Sketcher.Constraint("DistanceY", 0, 2, -1, 1, 2.5),
])
sketch15.setExpression("Constraints[11]", "Params.sketch15_height")
sketch15.setExpression("Constraints[12]", "Params.sketch15_width")
revolution4 = body2.newObject("PartDesign::Revolution", "Revolution003")
revolution4.Profile = sketch15
revolution4.ReferenceAxis = (sketch15, ["Axis0"])
revolution4.setExpression("Angle", "Params.revolution4_angle")

sketch16 = body2.newObject("Sketcher::SketchObject", "Sketch015")
sketch16.AttachmentSupport = (doc.getObject("XY_Plane001"), [""])
sketch16.MapMode = "FlatFace"
sketch16.AttachmentOffset = App.Placement(App.Vector(0, 0, 2.5), App.Rotation())
add_polygon(sketch16, [(2.5, 2.799998), (1.3, 2.499998), (1.3, 2.799998)])
sketch16.addConstraint([
    Sketcher.Constraint("Vertical", 1),
    Sketcher.Constraint("Horizontal", 2),
    Sketcher.Constraint("DistanceX", 2, 1, 2, 2, 1.2),
    Sketcher.Constraint("DistanceY", 1, 1, 1, 2, 0.3),
    Sketcher.Constraint("DistanceX", -1, 1, 0, 2, 1.3),
    Sketcher.Constraint("DistanceY", -1, 1, 0, 2, 2.499998),
])
sketch16.setExpression("Constraints[5]", "Params.sketch16_width")
sketch16.setExpression("Constraints[6]", "Params.sketch16_height")
pad8 = body2.newObject("PartDesign::Pad", "Pad007")
pad8.Profile = sketch16
pad8.setExpression("Length", "Params.pad8_length")
pad8.Reversed = True
body.AllowCompound = True
doc.recompute()

boolean = body.newObject("PartDesign::Boolean", "Boolean")
boolean.Type = "Fuse"
boolean.addObjects([body2])

sketch17 = body.newObject("Sketcher::SketchObject", "Sketch016")
sketch17.AttachmentSupport = (doc.getObject("XZ_Plane"), [""])
sketch17.MapMode = "FlatFace"
sketch17.AttachmentOffset = App.Placement(App.Vector(0, 0, -1.299998), App.Rotation())
add_polygon(sketch17, [(-1, -2.5), (-1, 2.5), (-0.2, 2.5), (-0.2, -2.5)])
sketch17.addConstraint([
    Sketcher.Constraint("Vertical", 0),
    Sketcher.Constraint("Horizontal", 1),
    Sketcher.Constraint("Vertical", 2),
    Sketcher.Constraint("Horizontal", 3),
    Sketcher.Constraint("DistanceY", 0, 1, 0, 2, 5.0),
    Sketcher.Constraint("DistanceX", 1, 1, 1, 2, 0.8),
    Sketcher.Constraint("DistanceX", 0, 2, -1, 1, 1.0),
    Sketcher.Constraint("DistanceY", -1, 1, 0, 2, 2.5),
])
sketch17.setExpression("Constraints[8]", "Params.sketch17_height")
sketch17.setExpression("Constraints[9]", "Params.sketch17_width")
pad9 = body.newObject("PartDesign::Pad", "Pad008")
pad9.Profile = sketch17
pad9.setExpression("Length", "Params.pad9_length")
pad9.Reversed = True

sketch18 = body.newObject("Sketcher::SketchObject", "Sketch017")
sketch18.AttachmentSupport = (doc.getObject("XY_Plane"), [""])
sketch18.MapMode = "FlatFace"
add_polygon(sketch18, [(-48, 0), (-50, 1.899996), (-50, 0)])
sketch18.addConstraint([
    Sketcher.Constraint("Vertical", 1),
    Sketcher.Constraint("Horizontal", 2),
    Sketcher.Constraint("PointOnObject", 1, 2, -1),
    Sketcher.Constraint("DistanceX", 2, 1, 2, 2, 2.0),
    Sketcher.Constraint("DistanceX", 0, 2, -1, 1, 50.0),
    Sketcher.Constraint("Distance", 0, 2.75862),
])
sketch18.setExpression("Constraints[6]", "Params.sketch18_width")
pocket5 = body.newObject("PartDesign::Pocket", "Pocket004")
pocket5.Profile = sketch18
pocket5.Type = "ThroughAll"
pocket5.Midplane = True

doc.recompute()
